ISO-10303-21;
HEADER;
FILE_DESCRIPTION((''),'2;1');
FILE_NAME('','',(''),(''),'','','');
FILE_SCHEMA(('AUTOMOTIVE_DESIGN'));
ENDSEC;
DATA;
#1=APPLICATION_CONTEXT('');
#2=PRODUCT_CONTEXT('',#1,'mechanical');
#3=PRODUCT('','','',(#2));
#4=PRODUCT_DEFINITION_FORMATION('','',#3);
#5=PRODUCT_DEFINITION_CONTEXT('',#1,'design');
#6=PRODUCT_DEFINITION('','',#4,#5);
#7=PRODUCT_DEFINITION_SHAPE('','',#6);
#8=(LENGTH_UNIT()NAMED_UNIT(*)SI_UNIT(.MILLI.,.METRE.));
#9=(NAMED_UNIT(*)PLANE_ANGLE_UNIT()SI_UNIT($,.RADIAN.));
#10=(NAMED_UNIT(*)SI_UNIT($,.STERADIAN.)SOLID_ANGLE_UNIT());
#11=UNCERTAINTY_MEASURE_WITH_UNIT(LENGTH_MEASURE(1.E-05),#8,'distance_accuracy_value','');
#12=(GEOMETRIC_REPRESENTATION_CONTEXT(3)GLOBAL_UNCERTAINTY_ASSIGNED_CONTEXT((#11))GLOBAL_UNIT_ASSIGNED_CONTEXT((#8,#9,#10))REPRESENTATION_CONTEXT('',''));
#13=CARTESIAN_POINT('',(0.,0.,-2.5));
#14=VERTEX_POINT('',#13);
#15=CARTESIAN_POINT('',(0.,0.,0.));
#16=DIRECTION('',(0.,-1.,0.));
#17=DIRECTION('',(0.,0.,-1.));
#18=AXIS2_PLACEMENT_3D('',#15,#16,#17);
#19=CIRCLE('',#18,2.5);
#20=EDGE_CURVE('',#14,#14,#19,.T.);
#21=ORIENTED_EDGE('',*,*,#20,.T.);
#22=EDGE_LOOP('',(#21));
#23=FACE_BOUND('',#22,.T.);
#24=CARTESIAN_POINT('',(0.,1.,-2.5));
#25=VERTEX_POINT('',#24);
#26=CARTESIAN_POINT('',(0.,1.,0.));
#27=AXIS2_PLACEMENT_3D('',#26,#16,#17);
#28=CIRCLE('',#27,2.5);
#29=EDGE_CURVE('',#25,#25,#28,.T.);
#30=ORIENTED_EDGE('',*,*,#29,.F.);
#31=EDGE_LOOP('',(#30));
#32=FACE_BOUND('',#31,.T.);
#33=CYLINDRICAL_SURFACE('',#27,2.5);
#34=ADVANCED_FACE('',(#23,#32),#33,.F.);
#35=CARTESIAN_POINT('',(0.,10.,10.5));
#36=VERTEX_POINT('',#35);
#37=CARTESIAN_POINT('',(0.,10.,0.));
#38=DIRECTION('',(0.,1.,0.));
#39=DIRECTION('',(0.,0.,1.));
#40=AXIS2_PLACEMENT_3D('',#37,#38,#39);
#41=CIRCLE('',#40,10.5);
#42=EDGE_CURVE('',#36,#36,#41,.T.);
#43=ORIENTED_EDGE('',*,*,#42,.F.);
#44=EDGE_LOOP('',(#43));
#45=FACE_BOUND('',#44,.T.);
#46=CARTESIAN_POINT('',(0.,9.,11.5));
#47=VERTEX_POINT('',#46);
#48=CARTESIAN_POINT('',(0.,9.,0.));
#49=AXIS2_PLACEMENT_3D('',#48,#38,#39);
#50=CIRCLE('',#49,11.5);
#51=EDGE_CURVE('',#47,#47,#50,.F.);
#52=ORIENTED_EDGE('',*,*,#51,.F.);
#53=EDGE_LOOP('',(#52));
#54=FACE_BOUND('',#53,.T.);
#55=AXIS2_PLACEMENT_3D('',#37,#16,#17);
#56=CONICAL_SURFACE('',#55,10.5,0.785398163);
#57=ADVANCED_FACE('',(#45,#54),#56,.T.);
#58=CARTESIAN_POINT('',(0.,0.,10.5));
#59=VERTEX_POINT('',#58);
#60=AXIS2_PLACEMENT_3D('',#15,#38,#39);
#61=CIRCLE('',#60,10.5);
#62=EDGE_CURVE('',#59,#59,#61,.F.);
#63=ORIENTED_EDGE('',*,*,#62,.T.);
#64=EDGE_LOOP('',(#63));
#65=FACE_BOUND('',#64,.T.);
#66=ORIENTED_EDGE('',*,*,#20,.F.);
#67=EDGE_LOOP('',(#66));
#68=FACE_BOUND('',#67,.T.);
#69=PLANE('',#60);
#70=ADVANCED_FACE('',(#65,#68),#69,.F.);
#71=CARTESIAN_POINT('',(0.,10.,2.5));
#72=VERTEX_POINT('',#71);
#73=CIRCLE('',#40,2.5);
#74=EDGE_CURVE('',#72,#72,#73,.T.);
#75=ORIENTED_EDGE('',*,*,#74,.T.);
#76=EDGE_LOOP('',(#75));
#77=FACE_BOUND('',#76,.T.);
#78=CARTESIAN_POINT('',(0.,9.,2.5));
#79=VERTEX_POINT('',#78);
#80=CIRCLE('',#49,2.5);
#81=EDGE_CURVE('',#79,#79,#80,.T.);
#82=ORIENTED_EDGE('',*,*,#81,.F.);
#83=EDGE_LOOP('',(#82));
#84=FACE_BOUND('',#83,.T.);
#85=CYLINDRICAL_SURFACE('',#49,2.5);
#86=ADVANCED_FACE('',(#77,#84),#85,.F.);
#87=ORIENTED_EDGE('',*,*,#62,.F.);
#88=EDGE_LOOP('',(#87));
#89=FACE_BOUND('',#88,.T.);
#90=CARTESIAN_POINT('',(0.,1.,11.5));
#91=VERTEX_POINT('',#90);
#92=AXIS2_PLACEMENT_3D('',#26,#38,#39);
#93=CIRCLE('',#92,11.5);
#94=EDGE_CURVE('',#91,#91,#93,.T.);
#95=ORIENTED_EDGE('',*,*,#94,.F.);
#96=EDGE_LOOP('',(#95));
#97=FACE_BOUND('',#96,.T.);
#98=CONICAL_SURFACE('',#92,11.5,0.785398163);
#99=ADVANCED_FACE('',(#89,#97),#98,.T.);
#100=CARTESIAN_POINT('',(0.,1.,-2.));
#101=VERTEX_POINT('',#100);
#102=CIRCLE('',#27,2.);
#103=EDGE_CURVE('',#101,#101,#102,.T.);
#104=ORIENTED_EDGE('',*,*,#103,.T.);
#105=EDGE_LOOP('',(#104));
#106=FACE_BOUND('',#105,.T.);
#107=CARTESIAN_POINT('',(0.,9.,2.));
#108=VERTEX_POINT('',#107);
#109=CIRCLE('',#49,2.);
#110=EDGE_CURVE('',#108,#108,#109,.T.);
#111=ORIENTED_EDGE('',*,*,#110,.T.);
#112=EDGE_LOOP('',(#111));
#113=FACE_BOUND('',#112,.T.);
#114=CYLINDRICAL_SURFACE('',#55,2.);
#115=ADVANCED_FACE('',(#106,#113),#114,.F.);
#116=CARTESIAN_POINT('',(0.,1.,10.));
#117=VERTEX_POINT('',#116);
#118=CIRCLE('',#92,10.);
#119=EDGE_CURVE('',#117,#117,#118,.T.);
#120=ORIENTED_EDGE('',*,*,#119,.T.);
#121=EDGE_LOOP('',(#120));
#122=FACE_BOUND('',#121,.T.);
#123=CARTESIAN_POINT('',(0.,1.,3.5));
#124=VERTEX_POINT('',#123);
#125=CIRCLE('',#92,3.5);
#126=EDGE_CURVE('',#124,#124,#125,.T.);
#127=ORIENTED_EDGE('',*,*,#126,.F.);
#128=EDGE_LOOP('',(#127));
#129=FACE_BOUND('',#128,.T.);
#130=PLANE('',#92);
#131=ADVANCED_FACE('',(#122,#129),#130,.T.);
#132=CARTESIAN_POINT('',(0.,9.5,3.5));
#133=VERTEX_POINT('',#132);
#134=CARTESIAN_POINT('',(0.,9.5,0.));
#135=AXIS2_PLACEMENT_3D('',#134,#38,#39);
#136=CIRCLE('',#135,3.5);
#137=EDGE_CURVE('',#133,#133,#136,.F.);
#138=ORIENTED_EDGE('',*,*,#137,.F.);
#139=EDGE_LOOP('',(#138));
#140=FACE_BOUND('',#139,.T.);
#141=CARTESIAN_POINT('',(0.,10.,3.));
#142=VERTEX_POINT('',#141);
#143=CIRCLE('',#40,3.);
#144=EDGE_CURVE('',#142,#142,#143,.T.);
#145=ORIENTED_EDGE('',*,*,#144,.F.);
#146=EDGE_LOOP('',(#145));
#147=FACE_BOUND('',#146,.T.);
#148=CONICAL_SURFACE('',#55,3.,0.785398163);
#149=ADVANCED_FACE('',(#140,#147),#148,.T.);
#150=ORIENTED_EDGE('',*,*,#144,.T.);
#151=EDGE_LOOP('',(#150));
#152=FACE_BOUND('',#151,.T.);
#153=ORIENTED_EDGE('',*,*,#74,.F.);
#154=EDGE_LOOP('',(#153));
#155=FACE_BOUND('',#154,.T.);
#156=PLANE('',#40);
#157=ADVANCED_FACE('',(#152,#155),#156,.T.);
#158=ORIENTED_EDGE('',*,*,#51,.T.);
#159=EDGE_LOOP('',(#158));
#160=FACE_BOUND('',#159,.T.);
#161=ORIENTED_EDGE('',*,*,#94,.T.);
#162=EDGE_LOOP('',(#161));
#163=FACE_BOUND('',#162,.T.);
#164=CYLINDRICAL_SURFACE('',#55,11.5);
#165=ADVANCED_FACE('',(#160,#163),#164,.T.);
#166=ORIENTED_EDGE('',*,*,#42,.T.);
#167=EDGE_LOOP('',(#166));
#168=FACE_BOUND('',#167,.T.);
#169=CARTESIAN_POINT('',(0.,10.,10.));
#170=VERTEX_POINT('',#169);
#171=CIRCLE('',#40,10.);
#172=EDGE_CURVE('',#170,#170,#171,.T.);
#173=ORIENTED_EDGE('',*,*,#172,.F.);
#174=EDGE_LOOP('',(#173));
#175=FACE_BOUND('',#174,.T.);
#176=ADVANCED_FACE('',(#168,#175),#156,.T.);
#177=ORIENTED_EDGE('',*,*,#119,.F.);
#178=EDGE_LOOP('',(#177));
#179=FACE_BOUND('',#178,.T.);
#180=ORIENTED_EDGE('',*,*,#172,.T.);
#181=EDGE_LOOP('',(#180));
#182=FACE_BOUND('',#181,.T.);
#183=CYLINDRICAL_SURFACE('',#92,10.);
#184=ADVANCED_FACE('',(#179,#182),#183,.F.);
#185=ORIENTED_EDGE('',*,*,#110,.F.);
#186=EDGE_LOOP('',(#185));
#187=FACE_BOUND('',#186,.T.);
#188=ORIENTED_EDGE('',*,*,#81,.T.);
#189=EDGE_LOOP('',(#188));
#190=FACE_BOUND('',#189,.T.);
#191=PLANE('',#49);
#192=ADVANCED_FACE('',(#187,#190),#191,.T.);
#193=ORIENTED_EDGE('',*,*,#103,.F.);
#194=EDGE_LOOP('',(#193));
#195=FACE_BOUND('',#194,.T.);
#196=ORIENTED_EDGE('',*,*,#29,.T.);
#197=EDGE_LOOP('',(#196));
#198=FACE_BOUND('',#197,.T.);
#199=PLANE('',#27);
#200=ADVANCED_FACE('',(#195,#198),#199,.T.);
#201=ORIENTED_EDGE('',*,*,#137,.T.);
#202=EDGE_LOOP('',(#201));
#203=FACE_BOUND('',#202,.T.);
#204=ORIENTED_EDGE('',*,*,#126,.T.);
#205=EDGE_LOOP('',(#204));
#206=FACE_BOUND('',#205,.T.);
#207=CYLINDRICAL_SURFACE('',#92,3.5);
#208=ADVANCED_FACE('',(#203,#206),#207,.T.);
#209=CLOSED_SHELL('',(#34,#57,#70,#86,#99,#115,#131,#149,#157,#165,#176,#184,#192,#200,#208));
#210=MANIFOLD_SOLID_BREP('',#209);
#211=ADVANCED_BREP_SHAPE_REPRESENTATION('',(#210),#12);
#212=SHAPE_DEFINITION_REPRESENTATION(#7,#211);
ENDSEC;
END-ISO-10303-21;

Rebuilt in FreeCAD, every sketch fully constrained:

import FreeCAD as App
import Part
import Sketcher
from FreeCAD import Vector


def edges_at(feature, points):
    """Names of the edges that pass closest to the given points."""
    edges = feature.Shape.Edges
    near = lambda p: min(range(len(edges)), key=lambda i: edges[i].distToShape(Part.Vertex(*p))[0])
    return sorted({f"Edge{near(p) + 1}" for p in points})

doc = App.newDocument("Part")
params = doc.addObject("Spreadsheet::Sheet", "Params")
for row, (alias, value) in enumerate([
    ("sketch1_diameter", "23 mm"),
    ("pad1_length", "10 mm"),
    ("sketch2_diameter", "20 mm"),
    ("sketch2_diameter2", "7 mm"),
    ("pocket1_length", "9 mm"),
    ("sketch3_diameter", "5 mm"),
    ("pocket2_length", "1 mm"),
    ("sketch4_diameter", "5 mm"),
    ("pocket3_length", "1 mm"),
    ("sketch5_diameter", "4 mm"),
    ("chamfer_size", "1 mm"),
    ("chamfer2_size", "0.5 mm"),
], start=1):
    params.set(f"A{row}", alias)
    params.set(f"B{row}", "=" + value)
    params.setAlias(f"B{row}", alias)

body = doc.addObject("PartDesign::Body", "Body")

# Sketch on XZ plane
sketch1 = body.newObject("Sketcher::SketchObject", "Sketch")
sketch1.AttachmentSupport = (doc.getObject("XZ_Plane"), [""])
sketch1.MapMode = "FlatFace"
sketch1.addGeometry(Part.Circle(Vector(0, 0, 0), Vector(0, 0, 1), 12), False)
sketch1.addConstraint(Sketcher.Constraint("Coincident", 0, 3, -1, 1))
sketch1.addConstraint(Sketcher.Constraint("Diameter", 0, 23.0))
sketch1.setExpression("Constraints[1]", "Params.sketch1_diameter")
pad1 = body.newObject("PartDesign::Pad", "Pad")
pad1.Profile = sketch1
pad1.setExpression("Length", "Params.pad1_length")
pad1.Reversed = True

# Sketch on XZ plane
sketch2 = body.newObject("Sketcher::SketchObject", "Sketch001")
sketch2.AttachmentSupport = (doc.getObject("XZ_Plane"), [""])
sketch2.MapMode = "FlatFace"
sketch2.AttachmentOffset = App.Placement(Vector(0, 0, -10), App.Rotation())
sketch2.addGeometry(Part.Circle(Vector(0, 0, 0), Vector(0, 0, 1), 10), False)
sketch2.addGeometry(Part.Circle(Vector(0, 0, 0), Vector(0, 0, 1), 3.5), False)
sketch2.addConstraint(Sketcher.Constraint("Coincident", 0, 3, -1, 1))
sketch2.addConstraint(Sketcher.Constraint("Coincident", 1, 3, -1, 1))
sketch2.addConstraint(Sketcher.Constraint("Diameter", 0, 20.0))
sketch2.addConstraint(Sketcher.Constraint("Diameter", 1, 7.0))
sketch2.setExpression("Constraints[2]", "Params.sketch2_diameter")
sketch2.setExpression("Constraints[3]", "Params.sketch2_diameter2")
pocket1 = body.newObject("PartDesign::Pocket", "Pocket")
pocket1.Profile = sketch2
pocket1.setExpression("Length", "Params.pocket1_length")
pocket1.Reversed = True

# Sketch on XZ plane
sketch3 = body.newObject("Sketcher::SketchObject", "Sketch002")
sketch3.AttachmentSupport = (doc.getObject("XZ_Plane"), [""])
sketch3.MapMode = "FlatFace"
sketch3.AttachmentOffset = App.Placement(Vector(0, 0, -10), App.Rotation())
sketch3.addGeometry(Part.Circle(Vector(0, 0, 0), Vector(0, 0, 1), 2.5), False)
sketch3.addConstraint(Sketcher.Constraint("Coincident", 0, 3, -1, 1))
sketch3.addConstraint(Sketcher.Constraint("Diameter", 0, 5.0))
sketch3.setExpression("Constraints[1]", "Params.sketch3_diameter")
pocket2 = body.newObject("PartDesign::Pocket", "Pocket001")
pocket2.Profile = sketch3
pocket2.setExpression("Length", "Params.pocket2_length")
pocket2.Reversed = True

# Sketch on XZ plane
sketch4 = body.newObject("Sketcher::SketchObject", "Sketch003")
sketch4.AttachmentSupport = (doc.getObject("XZ_Plane"), [""])
sketch4.MapMode = "FlatFace"
sketch4.AttachmentOffset = App.Placement(Vector(0, 0, -1), App.Rotation())
sketch4.addGeometry(Part.Circle(Vector(0, 0, 0), Vector(0, 0, 1), 2.5), False)
sketch4.addConstraint(Sketcher.Constraint("Coincident", 0, 3, -1, 1))
sketch4.addConstraint(Sketcher.Constraint("Diameter", 0, 5.0))
sketch4.setExpression("Constraints[1]", "Params.sketch4_diameter")
pocket3 = body.newObject("PartDesign::Pocket", "Pocket002")
pocket3.Profile = sketch4
pocket3.setExpression("Length", "Params.pocket3_length")
pocket3.Reversed = True

# Sketch on XZ plane
sketch5 = body.newObject("Sketcher::SketchObject", "Sketch004")
sketch5.AttachmentSupport = (doc.getObject("XZ_Plane"), [""])
sketch5.MapMode = "FlatFace"
sketch5.AttachmentOffset = App.Placement(Vector(0, 0, -1), App.Rotation())
sketch5.addGeometry(Part.Circle(Vector(0, 0, 0), Vector(0, 0, 1), 2), False)
sketch5.addConstraint(Sketcher.Constraint("Coincident", 0, 3, -1, 1))
sketch5.addConstraint(Sketcher.Constraint("Diameter", 0, 4.0))
sketch5.setExpression("Constraints[1]", "Params.sketch5_diameter")
pocket4 = body.newObject("PartDesign::Pocket", "Pocket003")
pocket4.Profile = sketch5
pocket4.Type = "ThroughAll"
doc.recompute()

chamfer = body.newObject("PartDesign::Chamfer", "Chamfer")
chamfer.Base = (pocket4, edges_at(pocket4, [(0, 0, -11.5), (0, 10, -11.5)]))
chamfer.setExpression("Size", "Params.chamfer_size")
doc.recompute()

chamfer2 = body.newObject("PartDesign::Chamfer", "Chamfer001")
chamfer2.Base = (chamfer, edges_at(chamfer, [(0, 10, -3.5)]))
chamfer2.setExpression("Size", "Params.chamfer2_size")

doc.recompute()
